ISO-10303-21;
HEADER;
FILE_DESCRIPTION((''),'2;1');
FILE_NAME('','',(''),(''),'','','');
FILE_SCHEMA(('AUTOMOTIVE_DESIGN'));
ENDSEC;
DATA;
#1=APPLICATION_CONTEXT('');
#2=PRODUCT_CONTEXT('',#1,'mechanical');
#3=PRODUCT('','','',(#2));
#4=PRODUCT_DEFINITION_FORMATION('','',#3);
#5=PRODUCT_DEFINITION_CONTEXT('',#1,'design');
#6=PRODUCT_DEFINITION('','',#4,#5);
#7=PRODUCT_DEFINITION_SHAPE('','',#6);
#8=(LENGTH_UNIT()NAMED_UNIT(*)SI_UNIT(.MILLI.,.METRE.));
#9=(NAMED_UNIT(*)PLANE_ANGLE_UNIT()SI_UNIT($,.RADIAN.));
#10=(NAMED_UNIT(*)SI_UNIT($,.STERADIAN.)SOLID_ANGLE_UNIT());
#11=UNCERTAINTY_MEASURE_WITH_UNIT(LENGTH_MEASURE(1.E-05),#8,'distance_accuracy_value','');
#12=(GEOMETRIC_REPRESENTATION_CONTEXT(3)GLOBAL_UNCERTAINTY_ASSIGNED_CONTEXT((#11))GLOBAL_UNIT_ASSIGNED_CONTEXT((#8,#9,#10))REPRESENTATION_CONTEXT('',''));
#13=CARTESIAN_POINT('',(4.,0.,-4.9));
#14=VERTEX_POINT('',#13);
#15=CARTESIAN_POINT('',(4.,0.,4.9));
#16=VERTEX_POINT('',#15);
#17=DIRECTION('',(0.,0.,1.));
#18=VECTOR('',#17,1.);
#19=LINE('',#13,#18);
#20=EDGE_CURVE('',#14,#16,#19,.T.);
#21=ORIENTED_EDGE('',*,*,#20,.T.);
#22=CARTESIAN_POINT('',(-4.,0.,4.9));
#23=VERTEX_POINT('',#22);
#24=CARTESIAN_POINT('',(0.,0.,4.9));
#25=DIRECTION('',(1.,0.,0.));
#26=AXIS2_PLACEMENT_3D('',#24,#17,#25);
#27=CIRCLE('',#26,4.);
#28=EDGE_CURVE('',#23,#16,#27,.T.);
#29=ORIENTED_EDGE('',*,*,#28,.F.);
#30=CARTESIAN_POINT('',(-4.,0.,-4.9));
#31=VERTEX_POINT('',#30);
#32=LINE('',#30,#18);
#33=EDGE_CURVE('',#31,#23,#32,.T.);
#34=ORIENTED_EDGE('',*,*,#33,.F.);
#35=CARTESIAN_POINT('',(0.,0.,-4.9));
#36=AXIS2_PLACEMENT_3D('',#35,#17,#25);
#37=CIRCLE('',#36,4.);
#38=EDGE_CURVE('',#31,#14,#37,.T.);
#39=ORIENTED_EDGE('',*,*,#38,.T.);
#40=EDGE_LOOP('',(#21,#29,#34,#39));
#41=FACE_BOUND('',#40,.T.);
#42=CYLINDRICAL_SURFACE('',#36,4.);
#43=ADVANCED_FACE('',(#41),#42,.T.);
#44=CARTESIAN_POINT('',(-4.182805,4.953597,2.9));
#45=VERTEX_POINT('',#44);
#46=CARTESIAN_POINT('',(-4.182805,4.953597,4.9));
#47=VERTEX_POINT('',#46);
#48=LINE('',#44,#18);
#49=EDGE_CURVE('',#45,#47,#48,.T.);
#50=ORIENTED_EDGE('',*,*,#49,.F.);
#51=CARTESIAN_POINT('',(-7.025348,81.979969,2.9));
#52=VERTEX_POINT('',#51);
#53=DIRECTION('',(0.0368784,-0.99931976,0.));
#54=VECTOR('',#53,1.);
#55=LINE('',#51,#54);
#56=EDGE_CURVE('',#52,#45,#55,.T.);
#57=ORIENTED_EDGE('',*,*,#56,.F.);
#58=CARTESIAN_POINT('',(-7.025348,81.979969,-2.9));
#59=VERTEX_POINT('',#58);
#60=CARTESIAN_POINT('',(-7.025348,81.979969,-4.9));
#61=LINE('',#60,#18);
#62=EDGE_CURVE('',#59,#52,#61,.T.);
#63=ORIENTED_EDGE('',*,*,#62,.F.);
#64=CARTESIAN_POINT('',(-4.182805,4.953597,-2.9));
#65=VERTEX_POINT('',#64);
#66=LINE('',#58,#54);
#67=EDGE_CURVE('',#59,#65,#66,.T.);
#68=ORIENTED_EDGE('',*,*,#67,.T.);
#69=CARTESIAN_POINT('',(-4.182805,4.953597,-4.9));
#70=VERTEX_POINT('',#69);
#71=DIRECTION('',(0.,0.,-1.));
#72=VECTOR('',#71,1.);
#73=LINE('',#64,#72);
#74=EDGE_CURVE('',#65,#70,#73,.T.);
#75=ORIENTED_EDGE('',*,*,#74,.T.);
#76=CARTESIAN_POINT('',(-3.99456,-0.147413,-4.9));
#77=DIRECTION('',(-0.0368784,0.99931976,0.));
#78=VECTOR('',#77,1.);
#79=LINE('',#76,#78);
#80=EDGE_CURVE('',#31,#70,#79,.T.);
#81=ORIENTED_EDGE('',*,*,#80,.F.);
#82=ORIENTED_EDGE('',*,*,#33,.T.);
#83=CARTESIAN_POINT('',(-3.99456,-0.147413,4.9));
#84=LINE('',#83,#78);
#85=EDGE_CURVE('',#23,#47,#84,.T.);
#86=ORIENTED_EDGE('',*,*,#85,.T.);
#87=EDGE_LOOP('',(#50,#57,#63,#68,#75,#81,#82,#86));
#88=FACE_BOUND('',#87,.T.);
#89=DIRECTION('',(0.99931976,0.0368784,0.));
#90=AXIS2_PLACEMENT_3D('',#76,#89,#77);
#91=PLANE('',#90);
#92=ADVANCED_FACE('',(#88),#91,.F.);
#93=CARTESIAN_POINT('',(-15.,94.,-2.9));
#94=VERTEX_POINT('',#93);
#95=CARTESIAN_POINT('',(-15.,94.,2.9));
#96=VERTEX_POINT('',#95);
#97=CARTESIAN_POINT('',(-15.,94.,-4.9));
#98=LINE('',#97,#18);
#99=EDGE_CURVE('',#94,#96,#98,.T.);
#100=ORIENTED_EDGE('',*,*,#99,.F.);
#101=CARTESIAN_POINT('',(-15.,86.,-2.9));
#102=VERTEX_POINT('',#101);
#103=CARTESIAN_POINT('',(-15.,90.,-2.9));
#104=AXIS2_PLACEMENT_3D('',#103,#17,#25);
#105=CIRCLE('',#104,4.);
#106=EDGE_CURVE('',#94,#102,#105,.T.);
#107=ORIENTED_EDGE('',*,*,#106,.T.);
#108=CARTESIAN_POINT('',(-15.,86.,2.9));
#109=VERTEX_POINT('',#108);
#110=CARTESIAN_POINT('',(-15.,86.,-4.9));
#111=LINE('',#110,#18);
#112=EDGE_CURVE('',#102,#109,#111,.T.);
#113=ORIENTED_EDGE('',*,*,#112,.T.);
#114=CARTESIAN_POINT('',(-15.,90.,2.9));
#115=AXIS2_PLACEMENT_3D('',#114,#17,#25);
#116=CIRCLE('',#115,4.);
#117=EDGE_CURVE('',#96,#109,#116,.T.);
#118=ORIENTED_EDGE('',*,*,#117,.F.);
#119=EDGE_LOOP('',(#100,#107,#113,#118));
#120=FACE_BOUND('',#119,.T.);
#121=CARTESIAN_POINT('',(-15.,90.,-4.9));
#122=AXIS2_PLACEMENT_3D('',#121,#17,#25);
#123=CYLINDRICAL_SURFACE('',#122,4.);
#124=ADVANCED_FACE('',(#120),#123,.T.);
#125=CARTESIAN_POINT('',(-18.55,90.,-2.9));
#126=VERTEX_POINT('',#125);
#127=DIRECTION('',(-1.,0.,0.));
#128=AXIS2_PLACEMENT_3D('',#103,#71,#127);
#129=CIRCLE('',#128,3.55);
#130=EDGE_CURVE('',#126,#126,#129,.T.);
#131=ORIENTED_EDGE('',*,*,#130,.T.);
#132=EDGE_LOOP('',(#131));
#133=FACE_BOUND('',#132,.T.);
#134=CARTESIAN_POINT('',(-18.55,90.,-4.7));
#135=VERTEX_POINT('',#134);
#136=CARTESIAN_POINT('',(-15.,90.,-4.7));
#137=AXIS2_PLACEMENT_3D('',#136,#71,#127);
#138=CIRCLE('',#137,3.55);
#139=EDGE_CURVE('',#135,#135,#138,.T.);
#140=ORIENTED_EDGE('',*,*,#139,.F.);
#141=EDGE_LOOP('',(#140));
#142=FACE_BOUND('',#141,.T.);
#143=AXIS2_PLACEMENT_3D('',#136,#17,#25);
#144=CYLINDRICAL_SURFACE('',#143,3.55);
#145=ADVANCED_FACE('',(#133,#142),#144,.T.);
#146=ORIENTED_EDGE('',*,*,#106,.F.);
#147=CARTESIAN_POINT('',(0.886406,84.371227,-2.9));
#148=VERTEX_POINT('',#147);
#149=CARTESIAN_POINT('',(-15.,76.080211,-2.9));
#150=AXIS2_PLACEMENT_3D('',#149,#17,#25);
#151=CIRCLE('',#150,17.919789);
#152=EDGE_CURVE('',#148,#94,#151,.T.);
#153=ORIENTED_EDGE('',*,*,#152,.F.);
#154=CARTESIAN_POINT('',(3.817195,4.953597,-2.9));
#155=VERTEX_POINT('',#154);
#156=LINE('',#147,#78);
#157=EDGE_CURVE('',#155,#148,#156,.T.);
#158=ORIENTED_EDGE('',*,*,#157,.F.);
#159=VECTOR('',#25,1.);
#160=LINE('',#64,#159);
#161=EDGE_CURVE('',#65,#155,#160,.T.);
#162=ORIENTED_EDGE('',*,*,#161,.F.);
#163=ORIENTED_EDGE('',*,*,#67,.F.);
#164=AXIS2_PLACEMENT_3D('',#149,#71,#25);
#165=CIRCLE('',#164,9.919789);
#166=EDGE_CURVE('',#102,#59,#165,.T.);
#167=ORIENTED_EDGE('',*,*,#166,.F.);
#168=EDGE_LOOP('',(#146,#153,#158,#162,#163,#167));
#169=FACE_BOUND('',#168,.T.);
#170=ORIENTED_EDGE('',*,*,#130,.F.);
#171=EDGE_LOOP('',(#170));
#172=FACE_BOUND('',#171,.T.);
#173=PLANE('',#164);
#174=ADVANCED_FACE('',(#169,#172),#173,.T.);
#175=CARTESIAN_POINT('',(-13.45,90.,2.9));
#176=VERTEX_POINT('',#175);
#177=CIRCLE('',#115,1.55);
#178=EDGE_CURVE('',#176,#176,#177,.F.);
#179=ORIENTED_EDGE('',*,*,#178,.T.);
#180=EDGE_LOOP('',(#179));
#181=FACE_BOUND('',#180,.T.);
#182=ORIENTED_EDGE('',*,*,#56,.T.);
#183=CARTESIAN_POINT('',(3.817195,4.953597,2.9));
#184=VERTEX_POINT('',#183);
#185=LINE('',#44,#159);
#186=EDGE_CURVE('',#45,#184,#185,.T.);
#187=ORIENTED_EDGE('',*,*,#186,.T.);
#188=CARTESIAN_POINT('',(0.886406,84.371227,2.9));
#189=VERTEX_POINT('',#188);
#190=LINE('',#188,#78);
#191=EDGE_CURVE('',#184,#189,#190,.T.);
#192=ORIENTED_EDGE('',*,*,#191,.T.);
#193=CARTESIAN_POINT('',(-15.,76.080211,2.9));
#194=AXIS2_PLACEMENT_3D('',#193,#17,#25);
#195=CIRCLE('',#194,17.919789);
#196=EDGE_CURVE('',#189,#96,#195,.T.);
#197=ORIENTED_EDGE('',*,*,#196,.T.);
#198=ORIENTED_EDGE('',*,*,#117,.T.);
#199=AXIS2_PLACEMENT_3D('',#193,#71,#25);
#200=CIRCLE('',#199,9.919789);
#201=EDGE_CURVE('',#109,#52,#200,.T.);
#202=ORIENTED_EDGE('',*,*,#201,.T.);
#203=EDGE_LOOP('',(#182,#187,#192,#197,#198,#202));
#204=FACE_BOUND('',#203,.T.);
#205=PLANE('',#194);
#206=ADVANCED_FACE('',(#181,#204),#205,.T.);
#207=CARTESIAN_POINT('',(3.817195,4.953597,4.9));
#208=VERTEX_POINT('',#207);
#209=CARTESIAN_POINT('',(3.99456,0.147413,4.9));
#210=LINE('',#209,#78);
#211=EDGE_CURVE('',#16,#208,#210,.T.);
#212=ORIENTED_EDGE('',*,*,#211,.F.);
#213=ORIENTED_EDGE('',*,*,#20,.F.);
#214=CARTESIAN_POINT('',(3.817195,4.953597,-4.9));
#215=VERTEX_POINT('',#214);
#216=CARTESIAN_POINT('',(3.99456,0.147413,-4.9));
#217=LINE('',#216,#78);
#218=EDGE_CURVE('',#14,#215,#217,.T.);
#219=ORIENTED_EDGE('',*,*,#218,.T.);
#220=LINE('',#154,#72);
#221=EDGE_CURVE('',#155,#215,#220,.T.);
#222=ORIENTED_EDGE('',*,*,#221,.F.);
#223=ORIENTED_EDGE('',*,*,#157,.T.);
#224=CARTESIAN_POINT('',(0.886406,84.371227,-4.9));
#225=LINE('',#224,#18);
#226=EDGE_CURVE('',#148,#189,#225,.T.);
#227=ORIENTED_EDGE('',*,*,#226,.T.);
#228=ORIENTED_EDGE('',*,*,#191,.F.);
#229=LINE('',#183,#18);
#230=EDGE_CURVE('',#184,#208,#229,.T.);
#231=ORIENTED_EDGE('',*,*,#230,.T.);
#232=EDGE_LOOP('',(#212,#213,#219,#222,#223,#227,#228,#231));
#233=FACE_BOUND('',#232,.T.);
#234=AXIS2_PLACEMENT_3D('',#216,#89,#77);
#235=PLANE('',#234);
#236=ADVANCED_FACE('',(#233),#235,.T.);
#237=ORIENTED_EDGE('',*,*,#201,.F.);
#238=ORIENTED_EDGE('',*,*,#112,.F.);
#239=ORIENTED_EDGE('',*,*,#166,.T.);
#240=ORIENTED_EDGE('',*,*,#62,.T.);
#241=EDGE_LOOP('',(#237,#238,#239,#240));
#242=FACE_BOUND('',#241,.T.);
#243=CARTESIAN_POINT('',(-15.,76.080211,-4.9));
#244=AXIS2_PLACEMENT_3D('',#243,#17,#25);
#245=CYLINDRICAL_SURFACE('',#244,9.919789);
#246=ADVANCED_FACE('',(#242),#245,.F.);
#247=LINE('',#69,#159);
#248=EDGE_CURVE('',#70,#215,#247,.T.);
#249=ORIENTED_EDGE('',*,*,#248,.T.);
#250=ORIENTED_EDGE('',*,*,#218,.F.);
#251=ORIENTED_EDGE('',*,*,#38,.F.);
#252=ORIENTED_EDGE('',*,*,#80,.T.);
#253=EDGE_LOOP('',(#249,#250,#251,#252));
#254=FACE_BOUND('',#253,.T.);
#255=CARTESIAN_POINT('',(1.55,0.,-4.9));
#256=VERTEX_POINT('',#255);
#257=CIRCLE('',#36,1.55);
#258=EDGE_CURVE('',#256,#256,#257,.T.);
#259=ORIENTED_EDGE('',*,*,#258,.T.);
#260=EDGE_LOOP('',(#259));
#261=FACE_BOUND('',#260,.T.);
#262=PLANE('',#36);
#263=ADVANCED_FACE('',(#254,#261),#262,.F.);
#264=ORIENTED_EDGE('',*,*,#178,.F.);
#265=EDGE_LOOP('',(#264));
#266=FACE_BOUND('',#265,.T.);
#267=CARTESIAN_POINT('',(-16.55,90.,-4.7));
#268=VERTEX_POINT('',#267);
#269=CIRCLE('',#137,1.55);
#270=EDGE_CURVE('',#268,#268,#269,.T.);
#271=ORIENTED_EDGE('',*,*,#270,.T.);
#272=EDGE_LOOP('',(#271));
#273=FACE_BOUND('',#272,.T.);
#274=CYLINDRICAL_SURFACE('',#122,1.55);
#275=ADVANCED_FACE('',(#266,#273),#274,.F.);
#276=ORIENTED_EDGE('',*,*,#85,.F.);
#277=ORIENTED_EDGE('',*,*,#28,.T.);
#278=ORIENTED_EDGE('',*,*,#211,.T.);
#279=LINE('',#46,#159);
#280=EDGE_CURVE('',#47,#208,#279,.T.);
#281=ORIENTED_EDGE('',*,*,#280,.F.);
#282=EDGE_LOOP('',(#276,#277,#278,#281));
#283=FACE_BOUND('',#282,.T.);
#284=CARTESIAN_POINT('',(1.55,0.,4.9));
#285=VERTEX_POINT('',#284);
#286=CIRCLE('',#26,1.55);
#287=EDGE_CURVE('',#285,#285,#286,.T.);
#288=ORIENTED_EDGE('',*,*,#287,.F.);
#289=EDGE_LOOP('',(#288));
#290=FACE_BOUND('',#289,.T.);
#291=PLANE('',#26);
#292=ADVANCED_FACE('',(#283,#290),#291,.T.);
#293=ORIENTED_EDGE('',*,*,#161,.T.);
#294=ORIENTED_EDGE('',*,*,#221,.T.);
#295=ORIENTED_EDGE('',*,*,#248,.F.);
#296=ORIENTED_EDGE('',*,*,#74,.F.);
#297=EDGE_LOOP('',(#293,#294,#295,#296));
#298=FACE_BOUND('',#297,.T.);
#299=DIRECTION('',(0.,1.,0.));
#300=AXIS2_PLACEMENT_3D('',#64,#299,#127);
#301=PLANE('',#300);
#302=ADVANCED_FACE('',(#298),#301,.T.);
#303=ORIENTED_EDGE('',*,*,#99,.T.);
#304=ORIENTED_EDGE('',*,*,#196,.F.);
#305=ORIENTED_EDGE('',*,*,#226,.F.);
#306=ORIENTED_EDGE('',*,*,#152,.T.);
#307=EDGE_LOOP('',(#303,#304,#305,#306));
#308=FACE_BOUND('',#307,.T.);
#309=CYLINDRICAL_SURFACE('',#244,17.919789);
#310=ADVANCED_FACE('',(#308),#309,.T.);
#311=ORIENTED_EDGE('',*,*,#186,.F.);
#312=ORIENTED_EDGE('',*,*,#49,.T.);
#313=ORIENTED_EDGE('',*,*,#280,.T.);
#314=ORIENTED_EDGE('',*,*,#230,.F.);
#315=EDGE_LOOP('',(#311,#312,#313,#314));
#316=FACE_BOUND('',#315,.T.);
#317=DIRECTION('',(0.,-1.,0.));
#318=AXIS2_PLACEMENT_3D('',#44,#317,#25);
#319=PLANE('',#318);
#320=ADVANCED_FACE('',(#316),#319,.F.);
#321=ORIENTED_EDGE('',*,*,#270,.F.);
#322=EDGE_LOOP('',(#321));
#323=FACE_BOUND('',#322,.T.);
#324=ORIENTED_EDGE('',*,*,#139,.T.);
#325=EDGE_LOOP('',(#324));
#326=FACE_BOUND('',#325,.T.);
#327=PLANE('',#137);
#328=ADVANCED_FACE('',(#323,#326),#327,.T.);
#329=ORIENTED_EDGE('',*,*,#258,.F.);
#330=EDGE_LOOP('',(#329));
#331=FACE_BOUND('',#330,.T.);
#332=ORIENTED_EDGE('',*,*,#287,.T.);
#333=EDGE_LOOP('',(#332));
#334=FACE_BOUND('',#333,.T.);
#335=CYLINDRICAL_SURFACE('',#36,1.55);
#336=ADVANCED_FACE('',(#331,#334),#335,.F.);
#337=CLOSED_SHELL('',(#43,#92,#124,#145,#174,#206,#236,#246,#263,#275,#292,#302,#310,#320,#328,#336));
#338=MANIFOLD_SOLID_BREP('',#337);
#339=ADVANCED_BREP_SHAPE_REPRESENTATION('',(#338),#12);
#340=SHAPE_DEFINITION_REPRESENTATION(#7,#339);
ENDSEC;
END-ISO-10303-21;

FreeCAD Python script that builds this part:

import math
import FreeCAD as App
import Part
import Sketcher
Q = App.Units.Quantity

doc = App.newDocument("Part")
body = doc.addObject("PartDesign::Body", "Body")

sketch1 = body.newObject("Sketcher::SketchObject", "Sketch")
sketch1.AttachmentSupport = (doc.getObject("XY_Plane"), [""])
sketch1.MapMode = "FlatFace"
sketch1.addGeometry([
    Part.ArcOfCircle(Part.Circle(App.Vector(-15, 76.080211, 0), App.Vector(0, 0, 1), 9.919789), math.radians(36.494549), math.radians(90)),
    Part.LineSegment(App.Vector(-7.025348, 81.979969, 0), App.Vector(-4, 0, 0)),
    Part.ArcOfCircle(Part.Circle(App.Vector(0, 0, 0), App.Vector(0, 0, 1), 4), math.radians(180), math.radians(360)),
    Part.LineSegment(App.Vector(4, 0, 0), App.Vector(0.886406, 84.371227, 0)),
    Part.ArcOfCircle(Part.Circle(App.Vector(-15, 76.080211, 0), App.Vector(0, 0, 1), 17.919789), math.radians(27.559774), math.radians(90)),
    Part.ArcOfCircle(Part.Circle(App.Vector(-15, 90, 0), App.Vector(0, 0, 1), 4), math.radians(90), math.radians(270)),
    Part.Circle(App.Vector(0, 0, 0), App.Vector(0, 0, 1), 1.55),
    Part.Circle(App.Vector(-15, 90, 0), App.Vector(0, 0, 1), 1.55),
], False)
sketch1.addConstraint([
    Sketcher.Constraint("Coincident", 0, 1, 1, 1),
    Sketcher.Constraint("Coincident", 1, 2, 2, 1),
    Sketcher.Constraint("Coincident", 2, 2, 3, 1),
    Sketcher.Constraint("Coincident", 3, 2, 4, 1),
    Sketcher.Constraint("Tangent", 4, 2, 5, 1),
    Sketcher.Constraint("Tangent", 5, 2, 0, 2),
    Sketcher.Constraint("Coincident", 2, 3, -1, 1),
    Sketcher.Constraint("Coincident", 6, 3, -1, 1),
    Sketcher.Constraint("Coincident", 4, 3, 0, 3),
    Sketcher.Constraint("Coincident", 7, 3, 5, 3),
    Sketcher.Constraint("Equal", 2, 5),
    Sketcher.Constraint("Equal", 6, 7),
    Sketcher.Constraint("PointOnObject", 1, 2, -1),
    Sketcher.Constraint("PointOnObject", 2, 2, -1),
    Sketcher.Constraint("Parallel", 1, 3),
    Sketcher.Constraint("Vertical", 4, 3, 5, 3),
    Sketcher.Constraint("Radius", 2, Q("4 mm")),
    Sketcher.Constraint("Diameter", 6, Q("3.1 mm")),
    Sketcher.Constraint("DistanceX", 0, 3, -1, 1, Q("15 mm")),
    Sketcher.Constraint("DistanceY", -1, 1, 5, 3, Q("90 mm")),
    Sketcher.Constraint("Radius", 0, Q("9.919789 mm")),
    Sketcher.Constraint("Distance", 3, Q("84.428658 mm")),
])
pad1 = body.newObject("PartDesign::Pad", "Pad")
pad1.Profile = sketch1
pad1.Type = "TwoLengths"
pad1.Length = 4.9
pad1.Length2 = 4.9

sketch2 = body.newObject("Sketcher::SketchObject", "Sketch001")
sketch2.AttachmentSupport = (doc.getObject("XY_Plane"), [""])
sketch2.MapMode = "FlatFace"
sketch2.AttachmentOffset = App.Placement(App.Vector(0, 0, 2.9), App.Rotation())
sketch2.addGeometry([
    Part.LineSegment(App.Vector(-7.025348, 81.979969, 0), App.Vector(-4.182805, 4.953597, 0)),
    Part.LineSegment(App.Vector(-4.182805, 4.953597, 0), App.Vector(3.817195, 4.953597, 0)),
    Part.LineSegment(App.Vector(3.817195, 4.953597, 0), App.Vector(0.886406, 84.371227, 0)),
    Part.ArcOfCircle(Part.Circle(App.Vector(-15, 76.080211, 0), App.Vector(0, 0, 1), 17.919789), math.radians(27.559774), math.radians(90)),
    Part.ArcOfCircle(Part.Circle(App.Vector(-15, 90, 0), App.Vector(0, 0, 1), 4), math.radians(90), math.radians(270)),
    Part.ArcOfCircle(Part.Circle(App.Vector(-15, 76.080211, 0), App.Vector(0, 0, 1), 9.919789), math.radians(36.494549), math.radians(90)),
], False)
sketch2.addConstraint([
    Sketcher.Constraint("Coincident", 0, 2, 1, 1),
    Sketcher.Constraint("Coincident", 1, 2, 2, 1),
    Sketcher.Constraint("Coincident", 2, 2, 3, 1),
    Sketcher.Constraint("Tangent", 3, 2, 4, 1),
    Sketcher.Constraint("Tangent", 4, 2, 5, 2),
    Sketcher.Constraint("Coincident", 5, 1, 0, 1),
    Sketcher.Constraint("Horizontal", 1),
    Sketcher.Constraint("Coincident", 5, 3, 3, 3),
    Sketcher.Constraint("Parallel", 0, 2),
    Sketcher.Constraint("Vertical", 3, 3, 4, 3),
    Sketcher.Constraint("Radius", 4, Q("4 mm")),
    Sketcher.Constraint("DistanceX", 1, 1, 1, 2, Q("8 mm")),
    Sketcher.Constraint("DistanceX", 3, 3, -1, 1, Q("15 mm")),
    Sketcher.Constraint("DistanceY", -1, 1, 4, 3, Q("90 mm")),
    Sketcher.Constraint("Radius", 3, Q("17.919789 mm")),
    Sketcher.Constraint("Distance", 2, Q("79.47169 mm")),
    Sketcher.Constraint("DistanceX", 5, 1, -1, 1, Q("7.025348 mm")),
    Sketcher.Constraint("DistanceX", 2, 2, 1, 2, Q("2.930789 mm")),
])
pocket1 = body.newObject("PartDesign::Pocket", "Pocket")
pocket1.Profile = sketch2
pocket1.Length = 2
pocket1.Reversed = True
doc.recompute()

mirrored = body.newObject("PartDesign::Mirrored", "Mirrored")
mirrored.Originals = [pocket1]
mirrored.MirrorPlane = (doc.getObject("XY_Plane"), [""])
body.Tip = mirrored

sketch3 = body.newObject("Sketcher::SketchObject", "Sketch002")
sketch3.AttachmentSupport = (doc.getObject("XY_Plane"), [""])
sketch3.MapMode = "FlatFace"
sketch3.AttachmentOffset = App.Placement(App.Vector(0, 0, -4.7), App.Rotation())
sketch3.addGeometry([
    Part.Circle(App.Vector(-15, 90, 0), App.Vector(0, 0, 1), 3.55),
    Part.Circle(App.Vector(-15, 90, 0), App.Vector(0, 0, 1), 1.55),
], False)
sketch3.addConstraint([
    Sketcher.Constraint("Coincident", 1, 3, 0, 3),
    Sketcher.Constraint("Diameter", 0, Q("7.1 mm")),
    Sketcher.Constraint("Diameter", 1, Q("3.1 mm")),
    Sketcher.Constraint("DistanceX", 0, 3, -1, 1, Q("15 mm")),
    Sketcher.Constraint("DistanceY", -1, 1, 0, 3, Q("90 mm")),
])
pad2 = body.newObject("PartDesign::Pad", "Pad001")
pad2.Profile = sketch3
pad2.Length = 1.8

doc.recompute()
